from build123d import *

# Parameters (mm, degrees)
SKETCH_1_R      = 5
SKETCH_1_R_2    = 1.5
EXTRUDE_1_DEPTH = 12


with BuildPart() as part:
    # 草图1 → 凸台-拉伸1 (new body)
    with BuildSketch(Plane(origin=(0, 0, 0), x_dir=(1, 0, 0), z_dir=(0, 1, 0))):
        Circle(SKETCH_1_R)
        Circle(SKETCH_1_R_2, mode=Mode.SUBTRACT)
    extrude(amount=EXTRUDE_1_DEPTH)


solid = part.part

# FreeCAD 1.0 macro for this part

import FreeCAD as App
import Part
import Sketcher
Q = App.Units.Quantity

doc = App.newDocument("Part")
body = doc.addObject("PartDesign::Body", "Body")

# Sketch on XZ plane
sketch1 = body.newObject("Sketcher::SketchObject", "Sketch")
sketch1.AttachmentSupport = (doc.getObject("XZ_Plane"), [""])
sketch1.MapMode = "FlatFace"
sketch1.addGeometry([
    Part.Circle(App.Vector(0, 0, 0), App.Vector(0, 0, 1), 5),
    Part.Circle(App.Vector(0, 0, 0), App.Vector(0, 0, 1), 1.5),
], False)
sketch1.addConstraint([
    Sketcher.Constraint("Coincident", 0, 3, -1, 1),
    Sketcher.Constraint("Coincident", 1, 3, -1, 1),
    Sketcher.Constraint("Diameter", 0, Q("10 mm")),
    Sketcher.Constraint("Diameter", 1, Q("3 mm")),
])
pad1 = body.newObject("PartDesign::Pad", "Pad")
pad1.Profile = sketch1
pad1.Length = 12
pad1.Reversed = True

doc.recompute()
